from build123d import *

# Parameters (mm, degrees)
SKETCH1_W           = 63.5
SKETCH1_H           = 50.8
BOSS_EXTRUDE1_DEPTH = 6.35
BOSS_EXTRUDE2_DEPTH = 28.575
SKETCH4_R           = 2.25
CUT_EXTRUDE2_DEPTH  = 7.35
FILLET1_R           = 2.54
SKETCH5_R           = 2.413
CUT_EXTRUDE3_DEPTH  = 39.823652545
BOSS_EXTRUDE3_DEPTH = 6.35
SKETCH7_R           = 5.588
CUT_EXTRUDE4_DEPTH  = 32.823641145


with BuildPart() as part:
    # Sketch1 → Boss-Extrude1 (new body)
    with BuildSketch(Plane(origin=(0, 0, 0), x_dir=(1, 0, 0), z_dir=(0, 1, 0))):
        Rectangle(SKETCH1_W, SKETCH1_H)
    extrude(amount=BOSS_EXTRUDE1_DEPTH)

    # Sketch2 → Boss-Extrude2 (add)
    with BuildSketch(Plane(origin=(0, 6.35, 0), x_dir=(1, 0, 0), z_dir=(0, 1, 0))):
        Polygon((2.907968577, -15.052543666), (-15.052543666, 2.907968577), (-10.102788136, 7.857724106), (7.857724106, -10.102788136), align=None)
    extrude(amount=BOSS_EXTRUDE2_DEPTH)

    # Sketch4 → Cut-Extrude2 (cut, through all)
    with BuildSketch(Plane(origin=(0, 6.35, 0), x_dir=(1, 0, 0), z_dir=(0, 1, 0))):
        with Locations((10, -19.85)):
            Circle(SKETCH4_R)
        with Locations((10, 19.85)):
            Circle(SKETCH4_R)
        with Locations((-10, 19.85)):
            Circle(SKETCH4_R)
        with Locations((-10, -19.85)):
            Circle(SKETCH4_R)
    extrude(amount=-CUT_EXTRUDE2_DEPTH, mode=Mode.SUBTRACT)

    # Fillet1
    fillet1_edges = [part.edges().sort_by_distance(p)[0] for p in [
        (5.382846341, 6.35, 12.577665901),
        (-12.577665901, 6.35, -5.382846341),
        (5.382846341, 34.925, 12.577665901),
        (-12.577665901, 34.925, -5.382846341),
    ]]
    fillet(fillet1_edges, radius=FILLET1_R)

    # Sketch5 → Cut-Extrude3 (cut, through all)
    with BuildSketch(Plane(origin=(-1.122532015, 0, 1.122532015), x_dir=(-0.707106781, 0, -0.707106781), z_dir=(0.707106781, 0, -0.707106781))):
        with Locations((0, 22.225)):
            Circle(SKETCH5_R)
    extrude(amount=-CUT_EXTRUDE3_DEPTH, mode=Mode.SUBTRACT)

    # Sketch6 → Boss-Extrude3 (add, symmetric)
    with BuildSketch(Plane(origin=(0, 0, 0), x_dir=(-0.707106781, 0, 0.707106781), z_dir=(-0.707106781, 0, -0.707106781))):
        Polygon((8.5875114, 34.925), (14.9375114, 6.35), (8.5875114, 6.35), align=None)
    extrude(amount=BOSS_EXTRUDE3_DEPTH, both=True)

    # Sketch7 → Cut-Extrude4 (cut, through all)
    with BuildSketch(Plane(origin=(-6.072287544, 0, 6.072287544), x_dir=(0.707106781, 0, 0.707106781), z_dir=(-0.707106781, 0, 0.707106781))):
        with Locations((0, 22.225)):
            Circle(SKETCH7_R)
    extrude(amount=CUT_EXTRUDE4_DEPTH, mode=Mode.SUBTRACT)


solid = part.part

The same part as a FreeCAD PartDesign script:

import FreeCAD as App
import Part
import Sketcher

V = App.Vector
Q = App.Units.Quantity


def edges_at(feature, points):
    """Names of the edges that pass closest to the given points."""
    edges = feature.Shape.Edges
    near = lambda p: min(range(len(edges)), key=lambda i: edges[i].distToShape(Part.Vertex(*p))[0])
    return sorted({f"Edge{near(p) + 1}" for p in points})

doc = App.newDocument("Part")
body = doc.addObject("PartDesign::Body", "Body")

# Sketch on XZ plane
sketch1 = doc.addObject("Sketcher::SketchObject", "Sketch")
body.addObject(sketch1)
sketch1.AttachmentSupport = (doc.XZ_Plane, [""])
sketch1.MapMode = "FlatFace"
sketch1.addGeometry([
    Part.LineSegment(V(-32, -25, 0), V(-32, 25, 0)),
    Part.LineSegment(V(-32, 25, 0), V(32, 25, 0)),
    Part.LineSegment(V(32, 25, 0), V(32, -25, 0)),
    Part.LineSegment(V(32, -25, 0), V(-32, -25, 0)),
], False)
sketch1.addConstraint([
    Sketcher.Constraint("Coincident", 0, 2, 1, 1),
    Sketcher.Constraint("Coincident", 1, 2, 2, 1),
    Sketcher.Constraint("Coincident", 2, 2, 3, 1),
    Sketcher.Constraint("Coincident", 3, 2, 0, 1),
    Sketcher.Constraint("Vertical", 0),
    Sketcher.Constraint("Horizontal", 1),
    Sketcher.Constraint("Vertical", 2),
    Sketcher.Constraint("Horizontal", 3),
    Sketcher.Constraint("Symmetric", 0, 2, 2, 2, -1, 1),
    Sketcher.Constraint("DistanceY", 0, 1, 0, 2, Q("2 in")),
    Sketcher.Constraint("DistanceX", 1, 1, 1, 2, Q("2.5 in")),
])
pad1 = doc.addObject("PartDesign::Pad", "Pad")
body.addObject(pad1)
pad1.Profile = sketch1
pad1.Length = Q("0.25 in")
pad1.Reversed = True

# Sketch on XZ plane
sketch2 = doc.addObject("Sketcher::SketchObject", "Sketch001")
body.addObject(sketch2)
sketch2.AttachmentSupport = (doc.XZ_Plane, [""])
sketch2.MapMode = "FlatFace"
sketch2.AttachmentOffset = App.Placement(V(0, 0, -0.25 * 25.4), App.Rotation())
sketch2.addGeometry([
    Part.LineSegment(V(-15, -3, 0), V(3, 15, 0)),
    Part.LineSegment(V(3, 15, 0), V(8, 10, 0)),
    Part.LineSegment(V(8, 10, 0), V(-10, -8, 0)),
    Part.LineSegment(V(-10, -8, 0), V(-15, -3, 0)),
], False)
sketch2.addConstraint([
    Sketcher.Constraint("Coincident", 0, 2, 1, 1),
    Sketcher.Constraint("Coincident", 1, 2, 2, 1),
    Sketcher.Constraint("Coincident", 2, 2, 3, 1),
    Sketcher.Constraint("Coincident", 3, 2, 0, 1),
    Sketcher.Constraint("Perpendicular", 0, 1),
    Sketcher.Constraint("Perpendicular", 1, 2),
    Sketcher.Constraint("Perpendicular", 2, 3),
    Sketcher.Constraint("Distance", 0, Q("1 in")),
    Sketcher.Constraint("Angle", 0, Q("45 deg")),
    Sketcher.Constraint("Distance", 1, 7.000011),
    Sketcher.Constraint("DistanceX", -1, 1, 0, 2, 2.907969),
    Sketcher.Constraint("DistanceY", -1, 1, 1, 2, 10.102788),
])
pad2 = doc.addObject("PartDesign::Pad", "Pad001")
body.addObject(pad2)
pad2.Profile = sketch2
pad2.Length = Q("1.125 in")
pad2.Reversed = True

# Sketch on XZ plane
sketch3 = doc.addObject("Sketcher::SketchObject", "Sketch002")
body.addObject(sketch3)
sketch3.AttachmentSupport = (doc.XZ_Plane, [""])
sketch3.MapMode = "FlatFace"
sketch3.AttachmentOffset = App.Placement(V(0, 0, -0.25 * 25.4), App.Rotation())
sketch3.addGeometry([
    Part.Circle(V(10, 19.9, 0), V(0, 0, 1), 2.2),
    Part.Circle(V(10, -19.9, 0), V(0, 0, 1), 2.2),
    Part.Circle(V(-10, -19.9, 0), V(0, 0, 1), 2.2),
    Part.Circle(V(-10, 19.9, 0), V(0, 0, 1), 2.2),
], False)
sketch3.addConstraint([
    Sketcher.Constraint("Equal", 0, 1),
    Sketcher.Constraint("Equal", 1, 2),
    Sketcher.Constraint("Equal", 2, 3),
    Sketcher.Constraint("Symmetric", 0, 3, 2, 3, -1, 1),
    Sketcher.Constraint("Symmetric", 1, 3, 3, 3, -1, 1),
    Sketcher.Constraint("Symmetric", 1, 3, 2, 3, -2),
    Sketcher.Constraint("Diameter", 0, 4.5),
    Sketcher.Constraint("DistanceX", -1, 1, 0, 3, 10.0),
    Sketcher.Constraint("DistanceY", -1, 1, 0, 3, 19.85),
])
pocket1 = doc.addObject("PartDesign::Pocket", "Pocket")
body.addObject(pocket1)
pocket1.Profile = sketch3
pocket1.Type = "ThroughAll"
pocket1.Reversed = True
doc.recompute()

fillet = doc.addObject("PartDesign::Fillet", "Fillet")
body.addObject(fillet)
fillet.Base = (pocket1, edges_at(pocket1, [
    (5.383, 6.35, 12.578),
    (-12.578, 6.35, -5.383),
    (5.383, 34.925, 12.578),
    (-12.578, 34.925, -5.383),
]))
fillet.Radius = Q("0.1 in")

# Sketch on an angled plane
sketch4 = doc.addObject("Sketcher::SketchObject", "Sketch003")
body.addObject(sketch4)
sketch4.Placement = App.Placement(V(-1.122532, 0, 1.122532), App.Rotation(V(-0.707106781, 0, -0.707106781), V(0, 0.999999999, 0), V(0.707106781, 0, -0.707106781), "ZXY"))
sketch4.addGeometry(Part.Circle(V(0, 22.2, 0), V(0, 0, 1), 2.4), False)
sketch4.addConstraint([
    Sketcher.Constraint("PointOnObject", 0, 3, -2),
    Sketcher.Constraint("Diameter", 0, Q("0.19 in")),
    Sketcher.Constraint("DistanceY", -1, 1, 0, 3, Q("0.875 in")),
])
pocket2 = doc.addObject("PartDesign::Pocket", "Pocket001")
body.addObject(pocket2)
pocket2.Profile = sketch4
pocket2.Type = "ThroughAll"

# Sketch on an angled plane
sketch5 = doc.addObject("Sketcher::SketchObject", "Sketch004")
body.addObject(sketch5)
sketch5.Placement = App.Placement(V(0, 0, 0), App.Rotation(V(-0.707106781, 0, 0.707106781), V(0, 0.999999999, 0), V(-0.707106781, 0, -0.707106781), "ZXY"))
sketch5.addGeometry([
    Part.LineSegment(V(15, 6, 0), V(9, 35, 0)),
    Part.LineSegment(V(9, 35, 0), V(9, 6, 0)),
    Part.LineSegment(V(9, 6, 0), V(15, 6, 0)),
], False)
sketch5.addConstraint([
    Sketcher.Constraint("Coincident", 0, 2, 1, 1),
    Sketcher.Constraint("Coincident", 1, 2, 2, 1),
    Sketcher.Constraint("Coincident", 2, 2, 0, 1),
    Sketcher.Constraint("Vertical", 1),
    Sketcher.Constraint("Horizontal", 2),
    Sketcher.Constraint("DistanceX", 2, 1, 2, 2, Q("0.25 in")),
    Sketcher.Constraint("DistanceY", 1, 2, 1, 1, Q("1.125 in")),
    Sketcher.Constraint("DistanceY", -1, 1, 1, 2, Q("0.25 in")),
    Sketcher.Constraint("DistanceX", -1, 1, 0, 2, 8.587511),
])
pad3 = doc.addObject("PartDesign::Pad", "Pad002")
body.addObject(pad3)
pad3.Profile = sketch5
pad3.Length = Q("0.5 in")
pad3.Midplane = True

# Sketch on an angled plane
sketch6 = doc.addObject("Sketcher::SketchObject", "Sketch005")
body.addObject(sketch6)
sketch6.Placement = App.Placement(V(-6.072288, 0, 6.072288), App.Rotation(V(0.707106781, 0, 0.707106781), V(0, 0.999999999, 0), V(-0.707106781, 0, 0.707106781), "ZXY"))
sketch6.addGeometry(Part.Circle(V(0, 22, 0), V(0, 0, 1), 6), False)
sketch6.addConstraint([
    Sketcher.Constraint("PointOnObject", 0, 3, -2),
    Sketcher.Constraint("Diameter", 0, Q("0.44 in")),
    Sketcher.Constraint("DistanceY", -1, 1, 0, 3, Q("0.875 in")),
])
pocket3 = doc.addObject("PartDesign::Pocket", "Pocket002")
body.addObject(pocket3)
pocket3.Profile = sketch6
pocket3.Type = "ThroughAll"
pocket3.Reversed = True

doc.recompute()
